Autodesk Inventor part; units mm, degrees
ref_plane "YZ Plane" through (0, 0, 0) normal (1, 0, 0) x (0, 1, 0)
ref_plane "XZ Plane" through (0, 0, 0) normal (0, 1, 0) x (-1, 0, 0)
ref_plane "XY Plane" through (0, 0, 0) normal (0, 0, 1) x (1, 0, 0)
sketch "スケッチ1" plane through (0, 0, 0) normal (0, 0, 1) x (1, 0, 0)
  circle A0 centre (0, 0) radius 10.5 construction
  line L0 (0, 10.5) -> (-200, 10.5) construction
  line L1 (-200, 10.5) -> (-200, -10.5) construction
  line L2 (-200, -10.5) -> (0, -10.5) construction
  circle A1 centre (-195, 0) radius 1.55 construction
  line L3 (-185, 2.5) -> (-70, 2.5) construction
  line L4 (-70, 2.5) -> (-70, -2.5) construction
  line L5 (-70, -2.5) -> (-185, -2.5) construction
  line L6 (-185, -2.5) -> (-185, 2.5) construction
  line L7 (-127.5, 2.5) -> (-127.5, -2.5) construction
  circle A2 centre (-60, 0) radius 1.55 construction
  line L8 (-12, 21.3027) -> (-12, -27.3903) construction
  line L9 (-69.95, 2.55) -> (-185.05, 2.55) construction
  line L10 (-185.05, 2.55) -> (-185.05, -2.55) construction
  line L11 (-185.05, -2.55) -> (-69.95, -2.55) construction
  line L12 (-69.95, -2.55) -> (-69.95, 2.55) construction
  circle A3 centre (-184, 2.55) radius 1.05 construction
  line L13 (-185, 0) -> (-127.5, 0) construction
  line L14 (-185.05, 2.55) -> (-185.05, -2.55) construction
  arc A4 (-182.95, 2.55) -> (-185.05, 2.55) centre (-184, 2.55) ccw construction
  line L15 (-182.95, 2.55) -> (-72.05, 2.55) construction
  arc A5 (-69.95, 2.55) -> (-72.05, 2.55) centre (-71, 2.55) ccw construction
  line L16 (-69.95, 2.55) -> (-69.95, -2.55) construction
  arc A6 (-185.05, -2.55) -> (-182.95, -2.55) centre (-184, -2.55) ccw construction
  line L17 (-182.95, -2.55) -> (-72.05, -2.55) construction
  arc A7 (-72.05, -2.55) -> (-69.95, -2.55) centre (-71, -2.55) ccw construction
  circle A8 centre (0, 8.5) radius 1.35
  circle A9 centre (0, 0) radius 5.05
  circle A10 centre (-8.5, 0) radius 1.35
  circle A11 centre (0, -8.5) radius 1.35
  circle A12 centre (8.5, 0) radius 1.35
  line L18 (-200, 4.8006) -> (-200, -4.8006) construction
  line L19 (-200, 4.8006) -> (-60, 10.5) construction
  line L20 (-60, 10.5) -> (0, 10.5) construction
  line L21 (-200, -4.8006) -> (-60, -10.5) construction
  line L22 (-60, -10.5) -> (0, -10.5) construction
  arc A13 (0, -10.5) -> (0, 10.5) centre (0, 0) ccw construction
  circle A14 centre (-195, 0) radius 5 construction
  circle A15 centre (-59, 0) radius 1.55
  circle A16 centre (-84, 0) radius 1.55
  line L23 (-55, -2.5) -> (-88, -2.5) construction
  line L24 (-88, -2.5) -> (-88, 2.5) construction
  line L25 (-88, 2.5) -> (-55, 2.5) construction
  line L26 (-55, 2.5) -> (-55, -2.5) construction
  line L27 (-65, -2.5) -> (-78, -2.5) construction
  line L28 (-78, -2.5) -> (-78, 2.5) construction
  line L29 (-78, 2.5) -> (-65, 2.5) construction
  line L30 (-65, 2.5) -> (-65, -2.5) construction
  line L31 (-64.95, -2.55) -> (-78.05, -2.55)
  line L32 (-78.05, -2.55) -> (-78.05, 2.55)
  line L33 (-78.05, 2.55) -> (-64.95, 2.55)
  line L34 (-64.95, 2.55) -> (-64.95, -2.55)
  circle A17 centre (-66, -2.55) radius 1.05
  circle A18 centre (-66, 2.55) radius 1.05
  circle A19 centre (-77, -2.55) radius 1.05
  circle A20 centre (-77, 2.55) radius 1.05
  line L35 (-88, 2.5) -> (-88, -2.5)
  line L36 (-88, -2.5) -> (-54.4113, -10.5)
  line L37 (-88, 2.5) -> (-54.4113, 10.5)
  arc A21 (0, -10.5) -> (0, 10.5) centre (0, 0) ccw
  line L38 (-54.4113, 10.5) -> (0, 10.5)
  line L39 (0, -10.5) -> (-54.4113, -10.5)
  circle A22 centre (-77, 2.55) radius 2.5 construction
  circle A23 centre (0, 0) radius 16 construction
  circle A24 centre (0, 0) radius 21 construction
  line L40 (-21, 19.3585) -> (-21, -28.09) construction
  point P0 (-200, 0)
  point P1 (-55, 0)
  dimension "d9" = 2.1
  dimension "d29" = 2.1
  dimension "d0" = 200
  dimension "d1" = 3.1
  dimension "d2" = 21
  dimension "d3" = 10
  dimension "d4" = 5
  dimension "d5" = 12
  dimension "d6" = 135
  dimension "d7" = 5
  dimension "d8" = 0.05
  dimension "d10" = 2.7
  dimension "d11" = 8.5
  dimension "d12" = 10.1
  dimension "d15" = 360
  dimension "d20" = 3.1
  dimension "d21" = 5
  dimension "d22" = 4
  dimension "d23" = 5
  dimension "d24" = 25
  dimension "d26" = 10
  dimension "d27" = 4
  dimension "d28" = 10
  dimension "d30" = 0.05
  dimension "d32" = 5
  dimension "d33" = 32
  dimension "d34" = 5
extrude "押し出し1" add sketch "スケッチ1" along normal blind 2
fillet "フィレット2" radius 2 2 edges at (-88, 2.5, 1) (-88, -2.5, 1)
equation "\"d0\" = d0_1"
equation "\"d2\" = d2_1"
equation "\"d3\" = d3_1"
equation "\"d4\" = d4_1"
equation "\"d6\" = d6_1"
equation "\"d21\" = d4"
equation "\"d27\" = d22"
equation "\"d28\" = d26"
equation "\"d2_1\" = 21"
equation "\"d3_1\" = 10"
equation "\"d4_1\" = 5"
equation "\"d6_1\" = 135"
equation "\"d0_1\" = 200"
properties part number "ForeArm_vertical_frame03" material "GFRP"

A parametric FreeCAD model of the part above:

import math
import FreeCAD as App
import Part
import Sketcher


def edges_at(feature, points):
    """Names of the edges that pass closest to the given points."""
    edges = feature.Shape.Edges
    near = lambda p: min(range(len(edges)), key=lambda i: edges[i].distToShape(Part.Vertex(*p))[0])
    return sorted({f"Edge{near(p) + 1}" for p in points})

doc = App.newDocument("Part")
body = doc.addObject("PartDesign::Body", "Body")

sketch1 = body.newObject("Sketcher::SketchObject", "Sketch")
sketch1.AttachmentSupport = (doc.getObject("XY_Plane"), [""])
sketch1.MapMode = "FlatFace"
sketch1.addGeometry(Part.LineSegment(App.Vector(-54.4113, 10.5, 0), App.Vector(-88, 2.5, 0)), False)
sketch1.addGeometry(Part.LineSegment(App.Vector(-88, 2.5, 0), App.Vector(-88, -2.5, 0)), False)
sketch1.addGeometry(Part.LineSegment(App.Vector(-88, -2.5, 0), App.Vector(-54.4113, -10.5, 0)), False)
sketch1.addGeometry(Part.LineSegment(App.Vector(-54.4113, -10.5, 0), App.Vector(0, -10.5, 0)), False)
sketch1.addGeometry(Part.ArcOfCircle(Part.Circle(App.Vector(0, 0, 0), App.Vector(0, 0, 1), 10.5), math.radians(-90), math.radians(90)), False)
sketch1.addGeometry(Part.LineSegment(App.Vector(0, 10.5, 0), App.Vector(-54.4113, 10.5, 0)), False)
sketch1.addGeometry(Part.Circle(App.Vector(0, -8.5, 0), App.Vector(0, 0, 1), 1.35), False)
sketch1.addGeometry(Part.Circle(App.Vector(-84, 0, 0), App.Vector(0, 0, 1), 1.55), False)
sketch1.addGeometry(Part.LineSegment(App.Vector(-67.05, -2.55, 0), App.Vector(-75.95, -2.55, 0)), False)
sketch1.addGeometry(Part.ArcOfCircle(Part.Circle(App.Vector(-77, -2.55, 0), App.Vector(0, 0, 1), 1.05), math.radians(180), math.radians(360)), False)
sketch1.addGeometry(Part.LineSegment(App.Vector(-78.05, -2.55, 0), App.Vector(-78.05, 2.55, 0)), False)
sketch1.addGeometry(Part.ArcOfCircle(Part.Circle(App.Vector(-77, 2.55, 0), App.Vector(0, 0, 1), 1.05), math.radians(0), math.radians(180)), False)
sketch1.addGeometry(Part.LineSegment(App.Vector(-75.95, 2.55, 0), App.Vector(-67.05, 2.55, 0)), False)
sketch1.addGeometry(Part.ArcOfCircle(Part.Circle(App.Vector(-66, 2.55, 0), App.Vector(0, 0, 1), 1.05), math.radians(0), math.radians(180)), False)
sketch1.addGeometry(Part.LineSegment(App.Vector(-64.95, 2.55, 0), App.Vector(-64.95, -2.55, 0)), False)
sketch1.addGeometry(Part.ArcOfCircle(Part.Circle(App.Vector(-66, -2.55, 0), App.Vector(0, 0, 1), 1.05), math.radians(180), math.radians(360)), False)
sketch1.addGeometry(Part.Circle(App.Vector(-59, 0, 0), App.Vector(0, 0, 1), 1.55), False)
sketch1.addGeometry(Part.Circle(App.Vector(-8.5, 0, 0), App.Vector(0, 0, 1), 1.35), False)
sketch1.addGeometry(Part.Circle(App.Vector(0, 0, 0), App.Vector(0, 0, 1), 5.05), False)
sketch1.addGeometry(Part.Circle(App.Vector(8.5, 0, 0), App.Vector(0, 0, 1), 1.35), False)
sketch1.addGeometry(Part.Circle(App.Vector(0, 8.5, 0), App.Vector(0, 0, 1), 1.35), False)
sketch1.addConstraint(Sketcher.Constraint("Coincident", 0, 2, 1, 1))
sketch1.addConstraint(Sketcher.Constraint("Coincident", 1, 2, 2, 1))
sketch1.addConstraint(Sketcher.Constraint("Coincident", 2, 2, 3, 1))
sketch1.addConstraint(Sketcher.Constraint("Tangent", 3, 2, 4, 1))
sketch1.addConstraint(Sketcher.Constraint("Tangent", 4, 2, 5, 1))
sketch1.addConstraint(Sketcher.Constraint("Coincident", 5, 2, 0, 1))
sketch1.addConstraint(Sketcher.Constraint("Coincident", 8, 2, 9, 2))
sketch1.addConstraint(Sketcher.Constraint("Tangent", 9, 1, 10, 1))
sketch1.addConstraint(Sketcher.Constraint("Tangent", 10, 2, 11, 2))
sketch1.addConstraint(Sketcher.Constraint("Coincident", 11, 1, 12, 1))
sketch1.addConstraint(Sketcher.Constraint("Coincident", 12, 2, 13, 2))
sketch1.addConstraint(Sketcher.Constraint("Tangent", 13, 1, 14, 1))
sketch1.addConstraint(Sketcher.Constraint("Tangent", 14, 2, 15, 2))
sketch1.addConstraint(Sketcher.Constraint("Coincident", 15, 1, 8, 1))
sketch1.addConstraint(Sketcher.Constraint("Vertical", 1))
sketch1.addConstraint(Sketcher.Constraint("Horizontal", 3))
sketch1.addConstraint(Sketcher.Constraint("Horizontal", 5))
sketch1.addConstraint(Sketcher.Constraint("Horizontal", 8))
sketch1.addConstraint(Sketcher.Constraint("Vertical", 10))
sketch1.addConstraint(Sketcher.Constraint("Horizontal", 12))
sketch1.addConstraint(Sketcher.Constraint("Vertical", 14))
sketch1.addConstraint(Sketcher.Constraint("Coincident", 4, 3, -1, 1))
sketch1.addConstraint(Sketcher.Constraint("Coincident", 18, 3, -1, 1))
sketch1.addConstraint(Sketcher.Constraint("Equal", 9, 11))
sketch1.addConstraint(Sketcher.Constraint("Equal", 11, 13))
sketch1.addConstraint(Sketcher.Constraint("Equal", 13, 15))
sketch1.addConstraint(Sketcher.Constraint("Equal", 7, 16))
sketch1.addConstraint(Sketcher.Constraint("Equal", 6, 17))
sketch1.addConstraint(Sketcher.Constraint("Equal", 17, 19))
sketch1.addConstraint(Sketcher.Constraint("Equal", 19, 20))
sketch1.addConstraint(Sketcher.Constraint("Symmetric", 17, 3, 19, 3, -1, 1))
sketch1.addConstraint(Sketcher.Constraint("Symmetric", 6, 3, 20, 3, -1, 1))
sketch1.addConstraint(Sketcher.Constraint("PointOnObject", 6, 3, -2))
sketch1.addConstraint(Sketcher.Constraint("PointOnObject", 7, 3, -1))
sketch1.addConstraint(Sketcher.Constraint("PointOnObject", 16, 3, -1))
sketch1.addConstraint(Sketcher.Constraint("PointOnObject", 17, 3, -1))
sketch1.addConstraint(Sketcher.Constraint("Horizontal", 11, 3, 13, 3))
sketch1.addConstraint(Sketcher.Constraint("Horizontal", 9, 3, 15, 3))
sketch1.addConstraint(Sketcher.Constraint("Horizontal", 15, 3, 8, 2))
sketch1.addConstraint(Sketcher.Constraint("Horizontal", 10, 2, 11, 1))
sketch1.addConstraint(Sketcher.Constraint("Vertical", 2, 2, 5, 2))
sketch1.addConstraint(Sketcher.Constraint("Equal", 0, 2))
sketch1.addConstraint(Sketcher.Constraint("Diameter", 6, 2.7))
sketch1.addConstraint(Sketcher.Constraint("Diameter", 7, 3.1))
sketch1.addConstraint(Sketcher.Constraint("Diameter", 18, 10.1))
sketch1.addConstraint(Sketcher.Constraint("Radius", 4, 10.5))
sketch1.addConstraint(Sketcher.Constraint("DistanceY", 1, 2, 1, 1, 5.0))
sketch1.addConstraint(Sketcher.Constraint("Radius", 9, 1.05))
sketch1.addConstraint(Sketcher.Constraint("DistanceX", 7, 3, 16, 3, 25.0))
sketch1.addConstraint(Sketcher.Constraint("DistanceX", 0, 2, 7, 3, 4.0))
sketch1.addConstraint(Sketcher.Constraint("DistanceY", 6, 3, -1, 1, 8.5))
sketch1.addConstraint(Sketcher.Constraint("DistanceX", 17, 3, -1, 1, 8.5))
sketch1.addConstraint(Sketcher.Constraint("DistanceY", 0, 2, 11, 3, 0.05))
sketch1.addConstraint(Sketcher.Constraint("DistanceY", 9, 3, 1, 2, 0.05))
sketch1.addConstraint(Sketcher.Constraint("DistanceX", 8, 2, 8, 1, 8.9))
sketch1.addConstraint(Sketcher.Constraint("DistanceX", 7, 3, -1, 1, 84.0))
sketch1.addConstraint(Sketcher.Constraint("DistanceX", 9, 3, -1, 1, 77.0))
sketch1.addConstraint(Sketcher.Constraint("DistanceX", 3, 1, 3, 2, 54.4113))
pad1 = body.newObject("PartDesign::Pad", "Pad")
pad1.Profile = sketch1
pad1.Length = 2
doc.recompute()

fillet = body.newObject("PartDesign::Fillet", "Fillet")
fillet.Base = (pad1, edges_at(pad1, [(-88, 2.5, 1), (-88, -2.5, 1)]))
fillet.Radius = 2

doc.recompute()
